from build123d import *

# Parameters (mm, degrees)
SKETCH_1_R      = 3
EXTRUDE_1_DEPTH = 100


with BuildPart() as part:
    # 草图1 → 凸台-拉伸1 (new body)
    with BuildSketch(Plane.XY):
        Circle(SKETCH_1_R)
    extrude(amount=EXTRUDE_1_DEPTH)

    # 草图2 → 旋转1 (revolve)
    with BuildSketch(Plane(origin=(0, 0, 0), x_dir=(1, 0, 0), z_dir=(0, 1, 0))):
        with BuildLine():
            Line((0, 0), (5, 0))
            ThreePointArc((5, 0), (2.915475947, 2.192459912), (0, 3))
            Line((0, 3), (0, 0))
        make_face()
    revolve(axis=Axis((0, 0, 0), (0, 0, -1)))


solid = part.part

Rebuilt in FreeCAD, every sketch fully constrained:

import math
import FreeCAD as App
import Part
import Sketcher
from FreeCAD import Vector
Q = App.Units.Quantity

doc = App.newDocument("Part")
params = doc.addObject("Spreadsheet::Sheet", "Params")
for row, (alias, value) in enumerate([
    ("sketch1_diameter", "6 mm"),
    ("pad1_length", "100 mm"),
    ("sketch2_width", "5 mm"),
    ("sketch2_height", "3 mm"),
    ("revolution_angle", "360 deg"),
], start=1):
    params.set(f"A{row}", alias)
    params.set(f"B{row}", "=" + value)
    params.setAlias(f"B{row}", alias)

body = doc.addObject("PartDesign::Body", "Body")

sketch1 = body.newObject("Sketcher::SketchObject", "Sketch")
sketch1.AttachmentSupport = (doc.getObject("XY_Plane"), [""])
sketch1.MapMode = "FlatFace"
sketch1.addGeometry(Part.Circle(Vector(0, 0, 0), Vector(0, 0, 1), 3), False)
sketch1.addConstraint(Sketcher.Constraint("Coincident", 0, 3, -1, 1))
sketch1.addConstraint(Sketcher.Constraint("Diameter", 0, Q("6 mm")))
sketch1.setExpression("Constraints[1]", "Params.sketch1_diameter")
pad1 = body.newObject("PartDesign::Pad", "Pad")
pad1.Profile = sketch1
pad1.setExpression("Length", "Params.pad1_length")

sketch2 = body.newObject("Sketcher::SketchObject", "Sketch001")
sketch2.AttachmentSupport = (doc.getObject("XZ_Plane"), [""])
sketch2.MapMode = "FlatFace"
sketch2.addGeometry(Part.LineSegment(Vector(0, 0, 0), Vector(5, 0, 0)), False)
sketch2.addGeometry(Part.ArcOfCircle(Part.Circle(Vector(0, 2.7, 0), Vector(0, 0, 1), 5.7), math.radians(-90), math.radians(-28)), False)
sketch2.addGeometry(Part.LineSegment(Vector(0, -3, 0), Vector(0, 0, 0)), False)
sketch2.addConstraint(Sketcher.Constraint("Coincident", 0, 2, 1, 2))
sketch2.addConstraint(Sketcher.Constraint("Coincident", 1, 1, 2, 1))
sketch2.addConstraint(Sketcher.Constraint("Coincident", 2, 2, 0, 1))
sketch2.addConstraint(Sketcher.Constraint("Horizontal", 0))
sketch2.addConstraint(Sketcher.Constraint("Vertical", 2))
sketch2.addConstraint(Sketcher.Constraint("Coincident", 2, 2, -1, 1))
sketch2.addConstraint(Sketcher.Constraint("PointOnObject", 1, 3, -2))
sketch2.addConstraint(Sketcher.Constraint("DistanceX", 0, 1, 0, 2, Q("5 mm")))
sketch2.addConstraint(Sketcher.Constraint("DistanceY", 2, 1, 2, 2, Q("3 mm")))
sketch2.setExpression("Constraints[7]", "Params.sketch2_width")
sketch2.setExpression("Constraints[8]", "Params.sketch2_height")
revolution = body.newObject("PartDesign::Revolution", "Revolution")
revolution.Profile = sketch2
revolution.ReferenceAxis = (sketch2, ["V_Axis"])
revolution.setExpression("Angle", "Params.revolution_angle")

doc.recompute()
